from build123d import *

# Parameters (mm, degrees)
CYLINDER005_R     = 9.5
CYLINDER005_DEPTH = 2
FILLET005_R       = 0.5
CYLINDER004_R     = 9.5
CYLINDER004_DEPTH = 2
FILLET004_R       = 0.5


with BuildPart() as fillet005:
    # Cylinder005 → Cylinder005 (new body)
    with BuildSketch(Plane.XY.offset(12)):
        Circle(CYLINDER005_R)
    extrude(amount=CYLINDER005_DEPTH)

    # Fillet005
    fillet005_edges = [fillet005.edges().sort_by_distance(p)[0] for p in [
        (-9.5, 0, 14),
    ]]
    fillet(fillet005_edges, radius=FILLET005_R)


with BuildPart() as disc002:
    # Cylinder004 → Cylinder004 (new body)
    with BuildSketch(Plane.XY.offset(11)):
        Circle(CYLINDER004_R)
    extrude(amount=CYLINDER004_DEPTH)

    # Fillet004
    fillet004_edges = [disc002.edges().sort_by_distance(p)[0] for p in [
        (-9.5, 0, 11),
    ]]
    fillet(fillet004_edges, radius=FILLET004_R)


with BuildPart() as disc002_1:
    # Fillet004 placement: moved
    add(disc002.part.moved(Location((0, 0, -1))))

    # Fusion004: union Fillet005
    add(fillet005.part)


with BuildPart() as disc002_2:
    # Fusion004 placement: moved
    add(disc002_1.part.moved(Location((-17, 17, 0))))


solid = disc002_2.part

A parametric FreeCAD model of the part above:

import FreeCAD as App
import Part
import Sketcher
Q = App.Units.Quantity


def edges_at(feature, points):
    """Names of the edges that pass closest to the given points."""
    edges = feature.Shape.Edges
    near = lambda p: min(range(len(edges)), key=lambda i: edges[i].distToShape(Part.Vertex(*p))[0])
    return sorted({f"Edge{near(p) + 1}" for p in points})

doc = App.newDocument("Part")
body = doc.addObject("PartDesign::Body", "Body")

# Sketch on XY plane
sketch1 = body.newObject("Sketcher::SketchObject", "Sketch")
sketch1.AttachmentSupport = (doc.getObject("XY_Plane"), [""])
sketch1.MapMode = "FlatFace"
sketch1.AttachmentOffset = App.Placement(App.Vector(0, 0, 12), App.Rotation())
sketch1.addGeometry(Part.Circle(App.Vector(0, 0, 0), App.Vector(0, 0, 1), 9.5), False)
sketch1.addConstraint(Sketcher.Constraint("Coincident", 0, 3, -1, 1))
sketch1.addConstraint(Sketcher.Constraint("Diameter", 0, Q("19 mm")))
pad1 = body.newObject("PartDesign::Pad", "Pad")
pad1.Profile = sketch1
pad1.Length = 2
doc.recompute()

fillet = body.newObject("PartDesign::Fillet", "Fillet")
fillet.Base = (pad1, edges_at(pad1, [(-9.5, 0, 14)]))
fillet.Radius = 0.5
body2 = doc.addObject("PartDesign::Body", "Body001")

# Sketch on XY plane
sketch2 = body2.newObject("Sketcher::SketchObject", "Sketch001")
sketch2.AttachmentSupport = (doc.getObject("XY_Plane001"), [""])
sketch2.MapMode = "FlatFace"
sketch2.AttachmentOffset = App.Placement(App.Vector(0, 0, 11), App.Rotation())
sketch2.addGeometry(Part.Circle(App.Vector(0, 0, 0), App.Vector(0, 0, 1), 9.5), False)
sketch2.addConstraint(Sketcher.Constraint("Coincident", 0, 3, -1, 1))
sketch2.addConstraint(Sketcher.Constraint("Diameter", 0, Q("19 mm")))
pad2 = body2.newObject("PartDesign::Pad", "Pad001")
pad2.Profile = sketch2
pad2.Length = 2
doc.recompute()

fillet2 = body2.newObject("PartDesign::Fillet", "Fillet001")
fillet2.Base = (pad2, edges_at(pad2, [(-9.5, 0, 11)]))
fillet2.Radius = 0.5
body3 = doc.addObject("PartDesign::Body", "Body002")
doc.recompute()

body2.Placement = App.Placement(App.Vector(0, 0, -1), App.Rotation(App.Vector(0, 0, 1), 0))
boolean = body3.newObject("PartDesign::Boolean", "Boolean")
boolean.Type = "Fuse"
boolean.addObjects([body2])
doc.recompute()

boolean2 = body3.newObject("PartDesign::Boolean", "Boolean001")
boolean2.Type = "Fuse"
boolean2.addObjects([body])
body4 = doc.addObject("PartDesign::Body", "Body003")
doc.recompute()

body3.Placement = App.Placement(App.Vector(-17, 17, 0), App.Rotation(App.Vector(0, 0, 1), 0))
boolean3 = body4.newObject("PartDesign::Boolean", "Boolean002")
boolean3.Type = "Fuse"
boolean3.addObjects([body3])

doc.recompute()
